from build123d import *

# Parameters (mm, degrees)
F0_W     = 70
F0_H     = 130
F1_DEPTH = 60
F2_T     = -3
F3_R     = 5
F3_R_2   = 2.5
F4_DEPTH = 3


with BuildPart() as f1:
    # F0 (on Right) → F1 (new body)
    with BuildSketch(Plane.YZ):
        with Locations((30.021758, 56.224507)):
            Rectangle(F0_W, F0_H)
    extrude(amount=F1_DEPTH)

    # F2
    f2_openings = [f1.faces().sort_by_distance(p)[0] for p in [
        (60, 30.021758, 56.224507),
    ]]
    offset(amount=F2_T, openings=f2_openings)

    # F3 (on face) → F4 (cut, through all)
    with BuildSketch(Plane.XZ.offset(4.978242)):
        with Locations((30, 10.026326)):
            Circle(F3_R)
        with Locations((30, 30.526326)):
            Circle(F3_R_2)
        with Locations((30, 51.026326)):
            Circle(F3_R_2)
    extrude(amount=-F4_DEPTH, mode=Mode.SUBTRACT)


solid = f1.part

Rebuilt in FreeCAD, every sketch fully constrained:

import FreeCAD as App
import Part
import Sketcher

V = App.Vector
Q = App.Units.Quantity


def faces_at(feature, points):
    """Names of the faces that lie closest to the given points."""
    faces = feature.Shape.Faces
    near = lambda p: min(range(len(faces)), key=lambda i: faces[i].distToShape(Part.Vertex(*p))[0])
    return sorted({f"Face{near(p) + 1}" for p in points})


def add_polygon(sketch, points):
    """Adds a closed chain of lines whose ends are joined by coincident constraints."""
    first, n = sketch.GeometryCount, len(points)
    for a, b in zip(points, points[1:] + points[:1]):
        sketch.addGeometry(Part.LineSegment(App.Vector(*a, 0), App.Vector(*b, 0)), False)
    for i in range(n):
        sketch.addConstraint(Sketcher.Constraint("Coincident", first + i, 2, first + (i + 1) % n, 1))

doc = App.newDocument("Part")
body = doc.addObject("PartDesign::Body", "Body")

# Sketch on YZ plane
sketch1 = body.newObject("Sketcher::SketchObject", "Sketch")
sketch1.AttachmentSupport = (doc.getObject("YZ_Plane"), [""])
sketch1.MapMode = "FlatFace"
add_polygon(sketch1, [(-4.978242, 121.224507), (-4.978242, -8.775493), (65.021758, -8.775493), (65.021758, 121.224507)])  # lines 0-3
sketch1.addConstraint([
    Sketcher.Constraint("Vertical", 0),
    Sketcher.Constraint("Horizontal", 1),
    Sketcher.Constraint("Vertical", 2),
    Sketcher.Constraint("Horizontal", 3),
    Sketcher.Constraint("DistanceX", 1, 1, 1, 2, Q("70 mm")),
    Sketcher.Constraint("DistanceY", 0, 2, 0, 1, Q("130 mm")),
    Sketcher.Constraint("DistanceX", 0, 2, -1, 1, Q("4.978242 mm")),
    Sketcher.Constraint("DistanceY", 0, 2, -1, 1, Q("8.775493 mm")),
])
pad1 = body.newObject("PartDesign::Pad", "Pad")
pad1.Profile = sketch1
pad1.Length = 60
doc.recompute()

thickness = body.newObject("PartDesign::Thickness", "Thickness")
thickness.Base = (pad1, faces_at(pad1, [(60, 30.022, 56.225)]))
thickness.Value = 3
thickness.Reversed = True
thickness.Join = "Arc"

# Sketch on XZ plane
sketch2 = body.newObject("Sketcher::SketchObject", "Sketch001")
sketch2.AttachmentSupport = (doc.getObject("XZ_Plane"), [""])
sketch2.MapMode = "FlatFace"
sketch2.AttachmentOffset = App.Placement(V(0, 0, 4.978242), App.Rotation())
sketch2.addGeometry([
    Part.Circle(V(30, 10.026326, 0), V(0, 0, 1), 5),
    Part.Circle(V(30, 30.526326, 0), V(0, 0, 1), 2.5),
    Part.Circle(V(30, 51.026326, 0), V(0, 0, 1), 2.5),
], False)
sketch2.addConstraint([
    Sketcher.Constraint("Equal", 1, 2),
    Sketcher.Constraint("Vertical", 0, 3, 1, 3),
    Sketcher.Constraint("Vertical", 1, 3, 2, 3),
    Sketcher.Constraint("Diameter", 0, Q("10 mm")),
    Sketcher.Constraint("Diameter", 1, Q("5 mm")),
    Sketcher.Constraint("DistanceX", -1, 1, 0, 3, Q("30 mm")),
    Sketcher.Constraint("DistanceY", 0, 3, 2, 3, Q("41 mm")),
    Sketcher.Constraint("DistanceY", 0, 3, 1, 3, Q("20.5 mm")),
    Sketcher.Constraint("DistanceY", -1, 1, 0, 3, Q("10.026326 mm")),
])
pocket1 = body.newObject("PartDesign::Pocket", "Pocket")
pocket1.Profile = sketch2
pocket1.Length = 3

doc.recompute()
